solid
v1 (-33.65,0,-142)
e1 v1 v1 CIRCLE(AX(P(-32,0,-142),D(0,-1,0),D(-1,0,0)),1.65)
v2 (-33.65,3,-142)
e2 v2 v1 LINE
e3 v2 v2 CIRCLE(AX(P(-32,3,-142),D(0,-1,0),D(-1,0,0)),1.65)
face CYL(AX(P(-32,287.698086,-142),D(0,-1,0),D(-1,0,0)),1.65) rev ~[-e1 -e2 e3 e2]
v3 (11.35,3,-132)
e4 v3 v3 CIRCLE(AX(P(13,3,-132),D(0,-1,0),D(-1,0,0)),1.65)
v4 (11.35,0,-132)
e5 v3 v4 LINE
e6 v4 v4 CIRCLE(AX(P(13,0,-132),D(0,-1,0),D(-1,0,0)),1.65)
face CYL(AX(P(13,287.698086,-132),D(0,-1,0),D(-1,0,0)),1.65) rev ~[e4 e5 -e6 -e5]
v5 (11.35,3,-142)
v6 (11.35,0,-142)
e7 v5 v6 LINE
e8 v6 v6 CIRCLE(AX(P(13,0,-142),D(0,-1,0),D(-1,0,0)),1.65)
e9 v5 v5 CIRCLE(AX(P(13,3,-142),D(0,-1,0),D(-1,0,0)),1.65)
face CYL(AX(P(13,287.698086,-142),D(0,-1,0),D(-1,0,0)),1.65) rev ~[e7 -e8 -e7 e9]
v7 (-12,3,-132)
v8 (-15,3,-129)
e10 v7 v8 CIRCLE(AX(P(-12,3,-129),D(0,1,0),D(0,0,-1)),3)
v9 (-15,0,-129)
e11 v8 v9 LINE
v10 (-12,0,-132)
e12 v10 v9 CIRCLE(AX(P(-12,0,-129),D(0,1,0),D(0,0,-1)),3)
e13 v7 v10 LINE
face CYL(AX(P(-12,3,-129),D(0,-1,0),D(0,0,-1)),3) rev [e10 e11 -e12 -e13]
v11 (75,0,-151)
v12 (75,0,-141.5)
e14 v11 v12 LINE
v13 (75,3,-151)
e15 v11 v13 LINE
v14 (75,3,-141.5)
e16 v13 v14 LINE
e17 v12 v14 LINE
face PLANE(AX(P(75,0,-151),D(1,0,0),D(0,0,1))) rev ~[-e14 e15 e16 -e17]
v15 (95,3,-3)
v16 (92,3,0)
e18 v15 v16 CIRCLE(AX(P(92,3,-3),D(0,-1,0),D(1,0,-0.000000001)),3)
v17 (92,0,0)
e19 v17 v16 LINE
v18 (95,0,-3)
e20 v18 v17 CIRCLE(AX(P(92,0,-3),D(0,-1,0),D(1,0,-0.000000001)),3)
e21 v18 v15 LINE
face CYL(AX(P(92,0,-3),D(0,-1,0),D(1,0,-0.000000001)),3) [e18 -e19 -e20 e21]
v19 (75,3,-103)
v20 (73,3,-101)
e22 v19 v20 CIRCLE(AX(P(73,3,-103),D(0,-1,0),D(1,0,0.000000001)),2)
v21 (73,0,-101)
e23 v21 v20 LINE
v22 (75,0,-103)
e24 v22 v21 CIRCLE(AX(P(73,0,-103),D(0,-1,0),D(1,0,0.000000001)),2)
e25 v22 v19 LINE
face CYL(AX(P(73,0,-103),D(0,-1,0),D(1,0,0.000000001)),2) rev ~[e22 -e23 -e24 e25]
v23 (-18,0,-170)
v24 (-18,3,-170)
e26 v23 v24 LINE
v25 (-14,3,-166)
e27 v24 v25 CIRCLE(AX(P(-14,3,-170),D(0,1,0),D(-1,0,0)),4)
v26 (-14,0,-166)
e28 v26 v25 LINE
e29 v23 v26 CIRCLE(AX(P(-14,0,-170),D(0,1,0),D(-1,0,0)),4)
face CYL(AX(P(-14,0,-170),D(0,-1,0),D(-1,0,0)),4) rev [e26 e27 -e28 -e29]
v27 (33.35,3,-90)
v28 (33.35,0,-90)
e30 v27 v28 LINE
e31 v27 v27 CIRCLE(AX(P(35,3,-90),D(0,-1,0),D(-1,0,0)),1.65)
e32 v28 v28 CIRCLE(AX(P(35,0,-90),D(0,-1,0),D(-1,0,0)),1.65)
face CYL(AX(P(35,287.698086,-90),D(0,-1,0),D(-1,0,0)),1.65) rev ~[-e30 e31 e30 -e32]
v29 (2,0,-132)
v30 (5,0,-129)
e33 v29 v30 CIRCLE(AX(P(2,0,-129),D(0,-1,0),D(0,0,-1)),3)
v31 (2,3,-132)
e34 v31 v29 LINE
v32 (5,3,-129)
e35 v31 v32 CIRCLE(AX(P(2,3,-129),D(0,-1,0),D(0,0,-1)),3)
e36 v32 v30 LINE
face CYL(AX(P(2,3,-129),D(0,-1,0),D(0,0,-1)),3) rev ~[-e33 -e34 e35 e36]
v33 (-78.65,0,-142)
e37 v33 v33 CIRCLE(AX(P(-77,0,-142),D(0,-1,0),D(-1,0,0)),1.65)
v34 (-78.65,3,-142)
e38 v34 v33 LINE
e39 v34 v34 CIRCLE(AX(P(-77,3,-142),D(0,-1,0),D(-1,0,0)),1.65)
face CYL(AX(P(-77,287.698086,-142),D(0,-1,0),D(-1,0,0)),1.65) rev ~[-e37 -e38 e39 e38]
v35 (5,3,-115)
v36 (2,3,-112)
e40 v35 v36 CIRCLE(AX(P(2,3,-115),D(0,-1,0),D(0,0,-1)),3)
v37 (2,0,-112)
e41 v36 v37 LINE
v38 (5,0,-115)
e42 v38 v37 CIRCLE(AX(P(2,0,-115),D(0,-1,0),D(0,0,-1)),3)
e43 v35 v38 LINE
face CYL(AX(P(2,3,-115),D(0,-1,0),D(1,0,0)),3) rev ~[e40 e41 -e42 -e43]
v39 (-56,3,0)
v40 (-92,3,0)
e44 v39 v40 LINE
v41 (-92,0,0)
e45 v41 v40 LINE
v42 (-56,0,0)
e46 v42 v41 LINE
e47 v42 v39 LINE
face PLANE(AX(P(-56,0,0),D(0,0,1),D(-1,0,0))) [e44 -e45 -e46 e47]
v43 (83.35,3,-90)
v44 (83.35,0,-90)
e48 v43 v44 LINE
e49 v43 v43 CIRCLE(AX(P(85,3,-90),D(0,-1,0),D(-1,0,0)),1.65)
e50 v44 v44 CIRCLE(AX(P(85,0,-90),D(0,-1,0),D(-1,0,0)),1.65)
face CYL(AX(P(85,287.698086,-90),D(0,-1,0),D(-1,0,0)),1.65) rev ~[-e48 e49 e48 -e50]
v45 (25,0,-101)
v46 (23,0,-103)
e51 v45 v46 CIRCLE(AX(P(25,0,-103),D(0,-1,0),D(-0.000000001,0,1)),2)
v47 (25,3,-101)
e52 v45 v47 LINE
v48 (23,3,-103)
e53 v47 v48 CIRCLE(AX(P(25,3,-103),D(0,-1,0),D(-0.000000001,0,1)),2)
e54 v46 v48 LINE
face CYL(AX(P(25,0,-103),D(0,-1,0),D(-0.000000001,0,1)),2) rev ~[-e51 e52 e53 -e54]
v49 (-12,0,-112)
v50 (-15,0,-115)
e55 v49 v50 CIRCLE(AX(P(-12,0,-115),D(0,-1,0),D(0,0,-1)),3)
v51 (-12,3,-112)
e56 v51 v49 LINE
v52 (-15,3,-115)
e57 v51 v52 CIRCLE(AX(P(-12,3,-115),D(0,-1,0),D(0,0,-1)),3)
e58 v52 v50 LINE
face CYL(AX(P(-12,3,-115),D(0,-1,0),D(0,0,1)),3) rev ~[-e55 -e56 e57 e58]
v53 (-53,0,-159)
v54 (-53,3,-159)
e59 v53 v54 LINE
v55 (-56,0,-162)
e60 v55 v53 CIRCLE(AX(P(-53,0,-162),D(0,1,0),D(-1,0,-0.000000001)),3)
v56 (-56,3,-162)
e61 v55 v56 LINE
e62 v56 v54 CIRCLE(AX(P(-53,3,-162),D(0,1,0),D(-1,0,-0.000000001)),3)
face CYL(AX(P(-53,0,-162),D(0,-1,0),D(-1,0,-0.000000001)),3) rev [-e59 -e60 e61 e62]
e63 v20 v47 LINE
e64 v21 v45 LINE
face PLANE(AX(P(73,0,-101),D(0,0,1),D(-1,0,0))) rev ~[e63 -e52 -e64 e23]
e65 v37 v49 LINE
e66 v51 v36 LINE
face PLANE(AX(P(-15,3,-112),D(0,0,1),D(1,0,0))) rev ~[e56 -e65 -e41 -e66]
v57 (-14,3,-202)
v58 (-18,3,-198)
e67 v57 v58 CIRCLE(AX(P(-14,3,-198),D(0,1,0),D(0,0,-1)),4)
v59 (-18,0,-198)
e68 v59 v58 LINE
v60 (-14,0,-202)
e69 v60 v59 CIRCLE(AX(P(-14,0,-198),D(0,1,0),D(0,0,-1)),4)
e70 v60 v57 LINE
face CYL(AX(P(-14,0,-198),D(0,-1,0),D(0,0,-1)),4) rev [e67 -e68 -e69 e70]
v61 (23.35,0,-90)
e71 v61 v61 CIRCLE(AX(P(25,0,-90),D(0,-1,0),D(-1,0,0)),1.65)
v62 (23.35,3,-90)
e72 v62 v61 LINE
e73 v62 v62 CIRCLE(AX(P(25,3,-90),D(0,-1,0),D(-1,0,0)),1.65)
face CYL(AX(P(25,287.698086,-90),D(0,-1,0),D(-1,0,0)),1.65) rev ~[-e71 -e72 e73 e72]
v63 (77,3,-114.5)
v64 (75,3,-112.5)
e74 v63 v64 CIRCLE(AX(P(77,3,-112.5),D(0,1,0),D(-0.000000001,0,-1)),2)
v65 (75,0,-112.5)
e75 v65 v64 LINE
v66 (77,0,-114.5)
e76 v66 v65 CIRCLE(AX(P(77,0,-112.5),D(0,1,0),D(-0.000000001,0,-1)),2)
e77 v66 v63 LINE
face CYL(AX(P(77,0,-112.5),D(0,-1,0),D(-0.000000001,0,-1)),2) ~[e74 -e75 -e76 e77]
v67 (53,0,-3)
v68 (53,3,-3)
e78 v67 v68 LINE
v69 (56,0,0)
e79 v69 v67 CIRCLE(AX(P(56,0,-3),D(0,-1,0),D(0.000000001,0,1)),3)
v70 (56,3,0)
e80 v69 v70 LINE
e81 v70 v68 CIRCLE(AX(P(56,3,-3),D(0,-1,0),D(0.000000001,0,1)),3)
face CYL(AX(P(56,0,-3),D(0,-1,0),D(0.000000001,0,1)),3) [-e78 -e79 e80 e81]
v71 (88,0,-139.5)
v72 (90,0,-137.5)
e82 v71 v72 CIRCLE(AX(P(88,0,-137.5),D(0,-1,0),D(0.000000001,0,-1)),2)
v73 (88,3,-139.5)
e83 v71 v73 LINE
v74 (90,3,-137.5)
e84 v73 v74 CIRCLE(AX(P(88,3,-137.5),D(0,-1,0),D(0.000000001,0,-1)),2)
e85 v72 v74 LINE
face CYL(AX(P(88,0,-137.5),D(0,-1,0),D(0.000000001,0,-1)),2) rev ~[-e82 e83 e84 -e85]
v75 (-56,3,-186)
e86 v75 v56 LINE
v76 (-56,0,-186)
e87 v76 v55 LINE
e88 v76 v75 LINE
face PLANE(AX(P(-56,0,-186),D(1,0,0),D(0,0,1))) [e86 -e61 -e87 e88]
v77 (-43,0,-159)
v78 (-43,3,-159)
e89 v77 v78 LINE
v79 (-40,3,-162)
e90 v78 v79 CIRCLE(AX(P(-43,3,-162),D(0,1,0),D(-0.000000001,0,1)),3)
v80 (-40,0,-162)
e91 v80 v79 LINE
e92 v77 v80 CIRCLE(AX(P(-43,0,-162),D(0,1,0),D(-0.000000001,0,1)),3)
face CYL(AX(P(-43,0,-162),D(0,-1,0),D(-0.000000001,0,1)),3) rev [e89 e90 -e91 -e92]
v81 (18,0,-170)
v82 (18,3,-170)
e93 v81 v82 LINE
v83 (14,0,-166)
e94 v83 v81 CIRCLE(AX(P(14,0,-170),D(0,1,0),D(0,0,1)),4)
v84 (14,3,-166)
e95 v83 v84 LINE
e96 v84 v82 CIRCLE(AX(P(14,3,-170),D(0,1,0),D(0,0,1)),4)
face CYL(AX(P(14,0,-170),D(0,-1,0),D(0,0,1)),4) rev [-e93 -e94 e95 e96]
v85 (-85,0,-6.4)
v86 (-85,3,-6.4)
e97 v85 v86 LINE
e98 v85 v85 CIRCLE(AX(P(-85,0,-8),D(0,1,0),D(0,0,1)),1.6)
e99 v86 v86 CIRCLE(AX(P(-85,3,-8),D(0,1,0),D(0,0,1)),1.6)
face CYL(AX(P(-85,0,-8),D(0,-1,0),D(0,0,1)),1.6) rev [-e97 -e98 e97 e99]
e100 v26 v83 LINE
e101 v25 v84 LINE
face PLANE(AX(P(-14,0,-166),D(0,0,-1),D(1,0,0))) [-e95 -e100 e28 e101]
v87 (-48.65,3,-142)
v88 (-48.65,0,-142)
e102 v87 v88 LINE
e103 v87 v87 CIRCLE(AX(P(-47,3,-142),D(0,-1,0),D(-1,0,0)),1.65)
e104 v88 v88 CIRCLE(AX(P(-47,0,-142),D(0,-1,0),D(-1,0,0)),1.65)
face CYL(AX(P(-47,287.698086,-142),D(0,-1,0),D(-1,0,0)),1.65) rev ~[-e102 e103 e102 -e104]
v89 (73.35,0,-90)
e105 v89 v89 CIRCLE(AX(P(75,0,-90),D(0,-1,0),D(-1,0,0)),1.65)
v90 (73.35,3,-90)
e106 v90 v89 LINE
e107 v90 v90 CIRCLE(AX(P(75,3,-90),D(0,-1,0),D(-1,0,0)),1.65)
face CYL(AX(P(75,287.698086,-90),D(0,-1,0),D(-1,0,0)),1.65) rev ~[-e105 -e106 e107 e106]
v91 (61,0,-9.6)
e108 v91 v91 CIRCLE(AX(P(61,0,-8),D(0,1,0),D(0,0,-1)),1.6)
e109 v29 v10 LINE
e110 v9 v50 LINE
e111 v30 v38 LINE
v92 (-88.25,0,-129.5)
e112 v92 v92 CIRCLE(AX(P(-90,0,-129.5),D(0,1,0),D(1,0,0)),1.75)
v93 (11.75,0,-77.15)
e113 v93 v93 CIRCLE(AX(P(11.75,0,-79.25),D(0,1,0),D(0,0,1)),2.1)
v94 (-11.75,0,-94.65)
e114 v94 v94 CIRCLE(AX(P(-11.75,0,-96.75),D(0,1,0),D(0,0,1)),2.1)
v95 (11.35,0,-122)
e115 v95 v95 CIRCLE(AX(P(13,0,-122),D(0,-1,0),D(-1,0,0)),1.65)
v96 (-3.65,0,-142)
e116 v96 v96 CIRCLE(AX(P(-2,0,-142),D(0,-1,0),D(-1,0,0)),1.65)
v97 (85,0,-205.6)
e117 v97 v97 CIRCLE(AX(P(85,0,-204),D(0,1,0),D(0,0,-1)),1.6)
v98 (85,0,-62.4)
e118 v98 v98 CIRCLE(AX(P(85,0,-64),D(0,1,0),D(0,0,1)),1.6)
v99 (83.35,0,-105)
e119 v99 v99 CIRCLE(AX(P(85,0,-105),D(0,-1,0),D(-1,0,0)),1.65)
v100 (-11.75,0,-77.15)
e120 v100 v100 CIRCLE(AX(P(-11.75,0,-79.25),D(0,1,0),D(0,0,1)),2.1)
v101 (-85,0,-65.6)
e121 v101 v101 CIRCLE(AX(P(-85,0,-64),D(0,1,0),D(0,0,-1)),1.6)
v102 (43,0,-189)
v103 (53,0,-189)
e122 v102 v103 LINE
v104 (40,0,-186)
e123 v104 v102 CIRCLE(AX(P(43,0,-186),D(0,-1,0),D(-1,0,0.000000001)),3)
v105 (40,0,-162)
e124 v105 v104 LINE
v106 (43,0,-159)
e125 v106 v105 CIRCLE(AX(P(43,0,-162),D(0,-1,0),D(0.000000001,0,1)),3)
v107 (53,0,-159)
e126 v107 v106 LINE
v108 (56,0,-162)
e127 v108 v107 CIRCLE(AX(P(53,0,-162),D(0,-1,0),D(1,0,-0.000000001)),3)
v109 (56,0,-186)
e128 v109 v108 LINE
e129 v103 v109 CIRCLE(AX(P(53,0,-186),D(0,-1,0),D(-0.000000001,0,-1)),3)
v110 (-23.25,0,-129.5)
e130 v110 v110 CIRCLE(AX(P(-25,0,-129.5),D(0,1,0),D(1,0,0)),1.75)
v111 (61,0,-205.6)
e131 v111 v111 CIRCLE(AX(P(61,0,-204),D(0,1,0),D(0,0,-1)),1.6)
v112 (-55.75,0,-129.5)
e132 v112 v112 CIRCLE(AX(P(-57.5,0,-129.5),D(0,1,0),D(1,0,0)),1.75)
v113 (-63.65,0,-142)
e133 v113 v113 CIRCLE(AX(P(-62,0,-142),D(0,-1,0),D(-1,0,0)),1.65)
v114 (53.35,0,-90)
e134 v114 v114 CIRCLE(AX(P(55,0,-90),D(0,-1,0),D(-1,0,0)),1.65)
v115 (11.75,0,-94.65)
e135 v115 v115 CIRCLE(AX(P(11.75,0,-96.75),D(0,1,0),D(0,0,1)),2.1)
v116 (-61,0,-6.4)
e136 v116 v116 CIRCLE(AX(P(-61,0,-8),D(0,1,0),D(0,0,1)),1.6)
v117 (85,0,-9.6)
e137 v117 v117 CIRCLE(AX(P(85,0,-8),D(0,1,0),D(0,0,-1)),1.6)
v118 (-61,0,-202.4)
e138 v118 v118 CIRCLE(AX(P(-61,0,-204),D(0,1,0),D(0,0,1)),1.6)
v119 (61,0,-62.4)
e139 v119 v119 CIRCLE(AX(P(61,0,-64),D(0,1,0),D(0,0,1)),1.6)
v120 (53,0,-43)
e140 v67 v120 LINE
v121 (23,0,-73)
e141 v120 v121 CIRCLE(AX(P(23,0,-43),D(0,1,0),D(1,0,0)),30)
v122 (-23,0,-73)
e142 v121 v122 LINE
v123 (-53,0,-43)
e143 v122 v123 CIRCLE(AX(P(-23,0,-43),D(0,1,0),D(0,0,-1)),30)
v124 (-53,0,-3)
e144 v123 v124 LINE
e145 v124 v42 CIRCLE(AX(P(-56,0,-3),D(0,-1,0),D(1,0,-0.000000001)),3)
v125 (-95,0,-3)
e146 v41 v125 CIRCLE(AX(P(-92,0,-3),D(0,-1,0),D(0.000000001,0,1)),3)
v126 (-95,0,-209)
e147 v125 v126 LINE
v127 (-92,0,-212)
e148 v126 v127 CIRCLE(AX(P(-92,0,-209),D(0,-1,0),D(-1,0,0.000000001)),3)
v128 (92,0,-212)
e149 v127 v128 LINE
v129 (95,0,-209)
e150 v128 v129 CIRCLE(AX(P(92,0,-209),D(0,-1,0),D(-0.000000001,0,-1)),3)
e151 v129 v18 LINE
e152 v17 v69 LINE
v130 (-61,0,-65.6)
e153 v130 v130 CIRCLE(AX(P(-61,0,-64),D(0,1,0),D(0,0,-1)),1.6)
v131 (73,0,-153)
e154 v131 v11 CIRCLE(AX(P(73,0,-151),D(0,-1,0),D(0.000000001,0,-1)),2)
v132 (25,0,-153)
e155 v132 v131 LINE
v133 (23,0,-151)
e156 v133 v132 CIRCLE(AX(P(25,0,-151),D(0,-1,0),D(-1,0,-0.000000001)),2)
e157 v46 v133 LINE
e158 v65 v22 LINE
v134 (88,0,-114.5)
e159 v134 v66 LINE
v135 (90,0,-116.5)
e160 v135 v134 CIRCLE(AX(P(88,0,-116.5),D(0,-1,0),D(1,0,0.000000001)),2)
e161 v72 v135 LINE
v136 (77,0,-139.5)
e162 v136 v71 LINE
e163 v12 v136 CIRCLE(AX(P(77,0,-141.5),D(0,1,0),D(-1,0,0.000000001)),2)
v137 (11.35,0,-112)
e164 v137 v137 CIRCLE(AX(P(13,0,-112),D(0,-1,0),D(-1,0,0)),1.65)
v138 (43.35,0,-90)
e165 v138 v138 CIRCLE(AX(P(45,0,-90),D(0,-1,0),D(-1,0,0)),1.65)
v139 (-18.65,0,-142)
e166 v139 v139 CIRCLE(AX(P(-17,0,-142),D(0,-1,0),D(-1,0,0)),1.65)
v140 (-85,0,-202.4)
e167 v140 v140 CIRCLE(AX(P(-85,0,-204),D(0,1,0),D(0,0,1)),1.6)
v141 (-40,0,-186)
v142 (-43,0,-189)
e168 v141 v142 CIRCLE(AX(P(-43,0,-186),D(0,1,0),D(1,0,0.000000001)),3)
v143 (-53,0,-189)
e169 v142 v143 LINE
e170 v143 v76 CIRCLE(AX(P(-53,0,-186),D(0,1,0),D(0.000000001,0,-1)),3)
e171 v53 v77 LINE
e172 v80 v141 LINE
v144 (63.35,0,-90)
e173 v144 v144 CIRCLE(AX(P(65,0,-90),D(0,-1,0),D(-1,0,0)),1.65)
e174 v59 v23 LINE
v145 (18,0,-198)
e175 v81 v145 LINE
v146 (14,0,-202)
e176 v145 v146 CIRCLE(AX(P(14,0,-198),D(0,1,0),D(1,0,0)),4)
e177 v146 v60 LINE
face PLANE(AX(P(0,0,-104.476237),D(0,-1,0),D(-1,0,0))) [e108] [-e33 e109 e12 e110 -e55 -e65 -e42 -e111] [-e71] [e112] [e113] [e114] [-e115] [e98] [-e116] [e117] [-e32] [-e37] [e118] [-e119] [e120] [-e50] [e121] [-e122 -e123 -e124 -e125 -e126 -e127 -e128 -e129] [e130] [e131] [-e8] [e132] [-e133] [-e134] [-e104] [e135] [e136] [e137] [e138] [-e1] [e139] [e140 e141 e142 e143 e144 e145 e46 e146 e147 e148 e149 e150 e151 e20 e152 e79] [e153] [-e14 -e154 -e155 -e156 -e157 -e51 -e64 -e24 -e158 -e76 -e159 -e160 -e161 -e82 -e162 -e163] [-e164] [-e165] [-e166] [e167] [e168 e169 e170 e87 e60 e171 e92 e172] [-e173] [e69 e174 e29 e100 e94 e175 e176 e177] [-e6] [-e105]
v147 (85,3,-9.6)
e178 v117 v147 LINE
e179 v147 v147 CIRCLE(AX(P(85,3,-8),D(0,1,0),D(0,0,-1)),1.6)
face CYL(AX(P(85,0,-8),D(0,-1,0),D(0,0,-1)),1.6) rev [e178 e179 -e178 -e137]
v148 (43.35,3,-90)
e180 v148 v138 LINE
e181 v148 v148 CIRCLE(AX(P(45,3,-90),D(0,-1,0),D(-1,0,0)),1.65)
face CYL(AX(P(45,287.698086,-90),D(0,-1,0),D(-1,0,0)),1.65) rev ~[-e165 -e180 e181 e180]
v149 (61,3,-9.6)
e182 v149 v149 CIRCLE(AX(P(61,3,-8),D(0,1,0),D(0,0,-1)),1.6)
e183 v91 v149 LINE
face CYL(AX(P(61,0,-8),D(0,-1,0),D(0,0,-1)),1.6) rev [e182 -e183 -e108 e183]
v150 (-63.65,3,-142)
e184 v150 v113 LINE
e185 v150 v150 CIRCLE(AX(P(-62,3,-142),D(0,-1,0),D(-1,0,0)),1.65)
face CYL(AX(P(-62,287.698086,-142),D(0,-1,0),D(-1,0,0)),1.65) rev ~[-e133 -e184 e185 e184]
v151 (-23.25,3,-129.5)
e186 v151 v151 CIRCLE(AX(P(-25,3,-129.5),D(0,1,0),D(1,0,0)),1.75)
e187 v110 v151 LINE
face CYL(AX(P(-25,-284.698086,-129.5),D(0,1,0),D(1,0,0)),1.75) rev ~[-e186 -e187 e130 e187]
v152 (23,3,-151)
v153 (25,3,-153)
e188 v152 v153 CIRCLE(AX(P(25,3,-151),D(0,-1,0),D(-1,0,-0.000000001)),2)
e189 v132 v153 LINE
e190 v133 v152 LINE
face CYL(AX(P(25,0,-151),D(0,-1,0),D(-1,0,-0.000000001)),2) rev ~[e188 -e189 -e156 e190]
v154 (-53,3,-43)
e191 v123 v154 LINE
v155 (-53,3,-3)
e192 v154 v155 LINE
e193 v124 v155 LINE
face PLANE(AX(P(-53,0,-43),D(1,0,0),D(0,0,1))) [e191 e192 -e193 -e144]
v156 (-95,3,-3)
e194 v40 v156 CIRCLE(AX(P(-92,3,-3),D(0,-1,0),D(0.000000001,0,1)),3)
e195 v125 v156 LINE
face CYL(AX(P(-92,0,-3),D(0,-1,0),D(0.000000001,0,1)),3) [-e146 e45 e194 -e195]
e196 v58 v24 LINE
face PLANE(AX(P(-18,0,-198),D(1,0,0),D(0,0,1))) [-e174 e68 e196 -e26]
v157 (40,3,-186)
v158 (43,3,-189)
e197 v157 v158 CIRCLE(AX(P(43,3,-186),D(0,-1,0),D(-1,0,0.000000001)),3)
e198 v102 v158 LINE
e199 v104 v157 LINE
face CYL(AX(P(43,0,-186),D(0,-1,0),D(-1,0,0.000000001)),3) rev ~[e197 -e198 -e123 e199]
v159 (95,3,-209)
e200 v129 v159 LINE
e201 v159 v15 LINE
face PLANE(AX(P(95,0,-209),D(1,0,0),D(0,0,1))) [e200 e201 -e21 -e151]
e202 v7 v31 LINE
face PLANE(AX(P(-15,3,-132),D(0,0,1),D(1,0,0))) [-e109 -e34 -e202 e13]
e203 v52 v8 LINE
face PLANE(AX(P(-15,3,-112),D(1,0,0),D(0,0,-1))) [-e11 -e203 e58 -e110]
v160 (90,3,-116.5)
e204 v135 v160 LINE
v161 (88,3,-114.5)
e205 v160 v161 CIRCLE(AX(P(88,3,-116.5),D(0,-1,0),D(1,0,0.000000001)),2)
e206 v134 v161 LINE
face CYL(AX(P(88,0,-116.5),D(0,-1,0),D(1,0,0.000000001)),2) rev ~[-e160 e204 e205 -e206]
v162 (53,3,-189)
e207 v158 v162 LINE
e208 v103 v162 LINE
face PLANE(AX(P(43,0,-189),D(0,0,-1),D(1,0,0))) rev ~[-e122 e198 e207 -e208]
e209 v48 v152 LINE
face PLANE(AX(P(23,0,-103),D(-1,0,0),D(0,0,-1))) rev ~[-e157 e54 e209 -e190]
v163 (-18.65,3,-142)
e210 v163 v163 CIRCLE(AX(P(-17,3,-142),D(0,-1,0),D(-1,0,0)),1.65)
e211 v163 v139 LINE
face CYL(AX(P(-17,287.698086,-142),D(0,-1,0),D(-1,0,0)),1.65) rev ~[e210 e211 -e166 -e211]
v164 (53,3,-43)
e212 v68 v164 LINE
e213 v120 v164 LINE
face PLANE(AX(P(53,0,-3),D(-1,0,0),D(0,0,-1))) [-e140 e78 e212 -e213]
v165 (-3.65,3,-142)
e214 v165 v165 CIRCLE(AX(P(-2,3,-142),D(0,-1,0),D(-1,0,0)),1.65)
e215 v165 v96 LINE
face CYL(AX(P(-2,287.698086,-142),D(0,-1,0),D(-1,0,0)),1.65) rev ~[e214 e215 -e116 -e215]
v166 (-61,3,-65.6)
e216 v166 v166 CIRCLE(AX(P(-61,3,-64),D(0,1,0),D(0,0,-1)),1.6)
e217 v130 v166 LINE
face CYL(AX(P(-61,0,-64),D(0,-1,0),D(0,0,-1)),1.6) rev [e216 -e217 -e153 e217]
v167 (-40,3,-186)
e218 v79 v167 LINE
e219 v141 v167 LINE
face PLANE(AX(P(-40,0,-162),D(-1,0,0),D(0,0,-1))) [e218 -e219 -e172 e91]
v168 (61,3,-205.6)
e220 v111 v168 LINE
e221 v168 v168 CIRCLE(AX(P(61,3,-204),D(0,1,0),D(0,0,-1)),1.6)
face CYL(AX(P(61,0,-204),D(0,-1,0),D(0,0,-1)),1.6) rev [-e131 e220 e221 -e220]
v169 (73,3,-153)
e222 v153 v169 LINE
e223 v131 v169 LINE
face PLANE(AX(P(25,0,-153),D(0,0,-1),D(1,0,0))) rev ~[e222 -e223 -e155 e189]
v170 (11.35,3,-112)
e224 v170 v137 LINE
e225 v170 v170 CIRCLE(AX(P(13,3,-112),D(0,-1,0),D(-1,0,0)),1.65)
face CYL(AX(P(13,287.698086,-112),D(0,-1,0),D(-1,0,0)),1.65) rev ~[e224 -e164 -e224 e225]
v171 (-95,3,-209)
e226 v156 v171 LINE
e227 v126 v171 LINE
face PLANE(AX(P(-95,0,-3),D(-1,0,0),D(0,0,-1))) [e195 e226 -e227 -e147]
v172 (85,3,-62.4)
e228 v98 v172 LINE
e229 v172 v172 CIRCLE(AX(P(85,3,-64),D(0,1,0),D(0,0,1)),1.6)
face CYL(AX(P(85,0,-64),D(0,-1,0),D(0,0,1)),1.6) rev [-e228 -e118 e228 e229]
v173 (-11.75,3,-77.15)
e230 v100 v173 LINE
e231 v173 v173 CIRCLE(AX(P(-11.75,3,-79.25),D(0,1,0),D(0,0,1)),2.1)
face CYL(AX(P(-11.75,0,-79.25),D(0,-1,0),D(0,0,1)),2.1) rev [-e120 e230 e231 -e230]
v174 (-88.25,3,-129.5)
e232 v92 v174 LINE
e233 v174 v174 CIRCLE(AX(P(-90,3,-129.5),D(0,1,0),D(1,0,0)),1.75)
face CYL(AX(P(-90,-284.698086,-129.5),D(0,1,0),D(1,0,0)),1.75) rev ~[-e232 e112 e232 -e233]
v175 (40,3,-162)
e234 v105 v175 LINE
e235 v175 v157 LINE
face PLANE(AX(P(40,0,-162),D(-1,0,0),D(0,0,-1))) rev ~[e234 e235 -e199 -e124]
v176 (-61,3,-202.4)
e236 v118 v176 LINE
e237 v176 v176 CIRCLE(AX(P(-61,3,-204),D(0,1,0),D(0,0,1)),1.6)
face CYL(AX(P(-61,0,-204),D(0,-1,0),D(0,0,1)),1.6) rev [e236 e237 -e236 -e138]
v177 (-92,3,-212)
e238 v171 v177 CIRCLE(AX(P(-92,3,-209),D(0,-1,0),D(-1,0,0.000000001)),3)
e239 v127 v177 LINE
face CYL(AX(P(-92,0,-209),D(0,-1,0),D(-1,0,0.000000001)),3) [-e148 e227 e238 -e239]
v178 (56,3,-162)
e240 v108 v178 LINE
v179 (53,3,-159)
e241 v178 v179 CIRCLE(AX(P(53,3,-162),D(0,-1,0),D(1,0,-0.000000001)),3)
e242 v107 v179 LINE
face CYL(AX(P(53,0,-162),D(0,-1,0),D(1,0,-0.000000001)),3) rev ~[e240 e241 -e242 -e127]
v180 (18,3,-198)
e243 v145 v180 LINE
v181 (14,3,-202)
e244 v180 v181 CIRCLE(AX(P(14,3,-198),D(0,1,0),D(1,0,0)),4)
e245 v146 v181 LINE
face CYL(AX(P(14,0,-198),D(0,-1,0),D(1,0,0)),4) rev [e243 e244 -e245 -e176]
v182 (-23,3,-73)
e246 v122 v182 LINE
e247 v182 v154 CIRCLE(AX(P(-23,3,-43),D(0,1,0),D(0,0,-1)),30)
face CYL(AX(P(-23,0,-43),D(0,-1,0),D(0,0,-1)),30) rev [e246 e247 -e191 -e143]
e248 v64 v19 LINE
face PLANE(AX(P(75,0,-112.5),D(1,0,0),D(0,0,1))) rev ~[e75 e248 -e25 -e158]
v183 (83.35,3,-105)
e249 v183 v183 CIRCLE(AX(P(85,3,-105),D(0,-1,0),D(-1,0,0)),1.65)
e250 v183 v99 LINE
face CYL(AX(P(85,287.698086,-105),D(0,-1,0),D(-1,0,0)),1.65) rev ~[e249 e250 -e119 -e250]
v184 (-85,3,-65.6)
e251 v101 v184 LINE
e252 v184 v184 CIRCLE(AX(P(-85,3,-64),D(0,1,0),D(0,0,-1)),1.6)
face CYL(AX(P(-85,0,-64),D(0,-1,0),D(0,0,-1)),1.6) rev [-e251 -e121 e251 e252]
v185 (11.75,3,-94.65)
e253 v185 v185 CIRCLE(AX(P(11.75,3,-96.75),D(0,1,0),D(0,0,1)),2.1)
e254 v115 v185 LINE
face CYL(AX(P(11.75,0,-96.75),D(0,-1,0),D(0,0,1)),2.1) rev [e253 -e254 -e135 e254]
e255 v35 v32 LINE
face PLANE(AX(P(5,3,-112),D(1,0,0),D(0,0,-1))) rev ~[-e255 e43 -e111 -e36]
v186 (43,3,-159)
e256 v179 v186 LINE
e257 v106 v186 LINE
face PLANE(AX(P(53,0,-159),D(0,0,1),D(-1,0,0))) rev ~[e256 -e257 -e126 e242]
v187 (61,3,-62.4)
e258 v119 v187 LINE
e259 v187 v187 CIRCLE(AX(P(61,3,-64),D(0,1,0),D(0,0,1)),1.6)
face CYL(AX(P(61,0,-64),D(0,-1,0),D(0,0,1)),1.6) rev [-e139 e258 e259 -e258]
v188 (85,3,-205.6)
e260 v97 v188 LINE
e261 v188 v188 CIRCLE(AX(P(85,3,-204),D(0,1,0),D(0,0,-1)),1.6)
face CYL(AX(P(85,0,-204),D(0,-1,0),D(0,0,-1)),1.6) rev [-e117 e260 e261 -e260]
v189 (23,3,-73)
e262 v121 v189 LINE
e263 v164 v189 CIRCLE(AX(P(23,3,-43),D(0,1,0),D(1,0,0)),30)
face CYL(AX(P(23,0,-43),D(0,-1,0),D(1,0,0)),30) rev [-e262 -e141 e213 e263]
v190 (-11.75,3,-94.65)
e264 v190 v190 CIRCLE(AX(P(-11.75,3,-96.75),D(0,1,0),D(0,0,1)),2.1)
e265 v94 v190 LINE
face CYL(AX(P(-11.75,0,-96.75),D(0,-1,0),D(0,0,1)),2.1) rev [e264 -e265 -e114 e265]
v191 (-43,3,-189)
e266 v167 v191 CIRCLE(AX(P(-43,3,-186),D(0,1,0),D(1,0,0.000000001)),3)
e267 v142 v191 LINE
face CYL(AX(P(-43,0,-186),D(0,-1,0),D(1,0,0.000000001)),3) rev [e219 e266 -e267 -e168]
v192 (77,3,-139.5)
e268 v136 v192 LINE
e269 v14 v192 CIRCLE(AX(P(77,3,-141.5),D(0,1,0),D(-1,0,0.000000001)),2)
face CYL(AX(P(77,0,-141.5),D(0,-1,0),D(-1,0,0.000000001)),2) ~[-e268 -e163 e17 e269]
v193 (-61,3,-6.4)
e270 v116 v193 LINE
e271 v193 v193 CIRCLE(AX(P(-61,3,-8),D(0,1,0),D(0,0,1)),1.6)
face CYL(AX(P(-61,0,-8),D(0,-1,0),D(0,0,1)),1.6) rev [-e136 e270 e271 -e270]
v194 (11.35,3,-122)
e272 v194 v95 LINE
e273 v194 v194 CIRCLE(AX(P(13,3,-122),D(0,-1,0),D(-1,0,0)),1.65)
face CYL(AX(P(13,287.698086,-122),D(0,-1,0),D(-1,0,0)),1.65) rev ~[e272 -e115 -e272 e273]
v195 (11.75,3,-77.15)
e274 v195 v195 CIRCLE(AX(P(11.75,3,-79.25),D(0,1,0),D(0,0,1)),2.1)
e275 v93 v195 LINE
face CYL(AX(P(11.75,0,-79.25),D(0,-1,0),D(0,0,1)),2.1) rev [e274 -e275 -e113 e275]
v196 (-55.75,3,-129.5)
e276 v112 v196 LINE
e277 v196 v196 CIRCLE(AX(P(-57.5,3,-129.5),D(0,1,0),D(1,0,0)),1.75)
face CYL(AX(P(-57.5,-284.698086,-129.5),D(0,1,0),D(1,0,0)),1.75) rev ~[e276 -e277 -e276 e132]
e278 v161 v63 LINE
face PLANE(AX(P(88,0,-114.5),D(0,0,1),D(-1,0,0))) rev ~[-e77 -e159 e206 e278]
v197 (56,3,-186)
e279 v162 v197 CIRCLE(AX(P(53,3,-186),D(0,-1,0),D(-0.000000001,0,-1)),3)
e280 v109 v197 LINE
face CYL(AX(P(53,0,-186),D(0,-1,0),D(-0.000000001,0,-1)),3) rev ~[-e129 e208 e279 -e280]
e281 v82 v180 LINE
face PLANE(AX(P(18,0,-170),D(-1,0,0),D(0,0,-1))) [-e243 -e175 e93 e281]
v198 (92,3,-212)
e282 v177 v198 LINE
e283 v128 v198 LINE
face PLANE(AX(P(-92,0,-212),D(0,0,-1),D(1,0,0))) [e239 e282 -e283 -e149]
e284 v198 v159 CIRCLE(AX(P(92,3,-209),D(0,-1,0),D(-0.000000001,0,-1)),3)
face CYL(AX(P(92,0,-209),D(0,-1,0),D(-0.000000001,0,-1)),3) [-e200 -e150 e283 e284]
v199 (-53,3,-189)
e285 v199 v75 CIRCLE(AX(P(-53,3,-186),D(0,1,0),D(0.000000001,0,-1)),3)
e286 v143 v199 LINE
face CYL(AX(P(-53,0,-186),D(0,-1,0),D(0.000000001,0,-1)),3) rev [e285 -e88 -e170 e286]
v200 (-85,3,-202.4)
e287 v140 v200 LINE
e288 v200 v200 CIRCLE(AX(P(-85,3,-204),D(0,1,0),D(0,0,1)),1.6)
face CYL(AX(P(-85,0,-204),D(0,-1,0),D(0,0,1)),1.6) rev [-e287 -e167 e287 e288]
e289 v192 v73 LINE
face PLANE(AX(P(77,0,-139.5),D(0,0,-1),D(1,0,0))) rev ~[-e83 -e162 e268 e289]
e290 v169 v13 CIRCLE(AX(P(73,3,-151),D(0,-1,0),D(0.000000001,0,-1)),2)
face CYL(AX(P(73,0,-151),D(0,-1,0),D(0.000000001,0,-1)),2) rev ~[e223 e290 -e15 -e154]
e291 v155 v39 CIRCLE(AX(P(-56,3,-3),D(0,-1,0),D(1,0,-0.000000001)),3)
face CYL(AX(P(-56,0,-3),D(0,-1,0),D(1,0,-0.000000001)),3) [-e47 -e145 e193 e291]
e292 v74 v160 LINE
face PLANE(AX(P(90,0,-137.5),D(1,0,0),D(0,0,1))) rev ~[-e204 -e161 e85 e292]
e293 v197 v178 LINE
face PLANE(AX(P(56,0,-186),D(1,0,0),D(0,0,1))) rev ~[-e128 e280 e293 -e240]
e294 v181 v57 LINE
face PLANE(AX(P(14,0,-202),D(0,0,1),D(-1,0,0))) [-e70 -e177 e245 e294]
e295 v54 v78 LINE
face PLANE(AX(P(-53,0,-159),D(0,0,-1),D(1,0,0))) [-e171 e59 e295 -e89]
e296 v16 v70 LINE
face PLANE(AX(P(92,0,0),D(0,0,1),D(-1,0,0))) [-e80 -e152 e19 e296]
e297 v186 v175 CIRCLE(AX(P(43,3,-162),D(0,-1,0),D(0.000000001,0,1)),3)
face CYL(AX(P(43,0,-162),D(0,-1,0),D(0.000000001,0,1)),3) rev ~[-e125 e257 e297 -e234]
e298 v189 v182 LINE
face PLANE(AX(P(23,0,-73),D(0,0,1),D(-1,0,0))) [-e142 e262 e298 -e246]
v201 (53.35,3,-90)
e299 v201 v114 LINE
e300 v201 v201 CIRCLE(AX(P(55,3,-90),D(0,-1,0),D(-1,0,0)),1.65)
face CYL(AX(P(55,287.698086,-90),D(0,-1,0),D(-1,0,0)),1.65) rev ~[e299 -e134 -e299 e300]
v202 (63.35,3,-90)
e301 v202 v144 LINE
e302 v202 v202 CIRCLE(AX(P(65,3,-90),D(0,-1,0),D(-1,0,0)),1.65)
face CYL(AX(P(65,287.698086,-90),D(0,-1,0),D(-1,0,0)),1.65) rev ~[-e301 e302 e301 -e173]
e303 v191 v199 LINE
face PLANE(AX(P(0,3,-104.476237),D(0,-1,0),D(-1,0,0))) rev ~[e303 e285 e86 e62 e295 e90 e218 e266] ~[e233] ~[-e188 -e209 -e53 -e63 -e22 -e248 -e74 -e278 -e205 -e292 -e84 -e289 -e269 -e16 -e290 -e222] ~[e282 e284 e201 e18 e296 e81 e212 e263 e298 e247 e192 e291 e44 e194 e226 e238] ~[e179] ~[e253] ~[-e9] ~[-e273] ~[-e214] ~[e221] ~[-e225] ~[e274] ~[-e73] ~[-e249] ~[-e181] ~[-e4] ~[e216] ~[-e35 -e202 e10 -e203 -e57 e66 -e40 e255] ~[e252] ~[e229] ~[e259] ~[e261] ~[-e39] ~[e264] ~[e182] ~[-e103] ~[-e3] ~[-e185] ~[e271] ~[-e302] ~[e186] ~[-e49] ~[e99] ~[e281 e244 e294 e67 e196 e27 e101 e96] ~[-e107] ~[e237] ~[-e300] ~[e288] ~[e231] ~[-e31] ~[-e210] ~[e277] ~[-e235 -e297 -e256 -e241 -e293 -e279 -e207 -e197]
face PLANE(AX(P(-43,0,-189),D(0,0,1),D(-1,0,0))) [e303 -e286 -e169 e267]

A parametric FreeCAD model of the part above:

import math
import FreeCAD as App
import Part
import Sketcher
Q = App.Units.Quantity


def edges_at(feature, points):
    """Names of the edges that pass closest to the given points."""
    edges = feature.Shape.Edges
    near = lambda p: min(range(len(edges)), key=lambda i: edges[i].distToShape(Part.Vertex(*p))[0])
    return sorted({f"Edge{near(p) + 1}" for p in points})

doc = App.newDocument("Part")
body = doc.addObject("PartDesign::Body", "Body")

sketch1 = body.newObject("Sketcher::SketchObject", "Sketch")
sketch1.AttachmentSupport = (doc.getObject("XZ_Plane"), [""])
sketch1.MapMode = "FlatFace"
sketch1.addGeometry([
    Part.LineSegment(App.Vector(-95, -209, 0), App.Vector(-95, -3, 0)),
    Part.ArcOfCircle(Part.Circle(App.Vector(-92, -3, 0), App.Vector(0, 0, 1), 3), math.radians(90), math.radians(180)),
    Part.LineSegment(App.Vector(-92, 0, 0), App.Vector(-56, 0, 0)),
    Part.ArcOfCircle(Part.Circle(App.Vector(-56, -3, 0), App.Vector(0, 0, 1), 3), math.radians(0), math.radians(90)),
    Part.LineSegment(App.Vector(-53, -3, 0), App.Vector(-53, -43, 0)),
    Part.ArcOfCircle(Part.Circle(App.Vector(-23, -43, 0), App.Vector(0, 0, 1), 30), math.radians(180), math.radians(270)),
    Part.LineSegment(App.Vector(-23, -73, 0), App.Vector(23, -73, 0)),
    Part.ArcOfCircle(Part.Circle(App.Vector(23, -43, 0), App.Vector(0, 0, 1), 30), math.radians(-90), math.radians(0)),
    Part.LineSegment(App.Vector(53, -43, 0), App.Vector(53, -3, 0)),
    Part.ArcOfCircle(Part.Circle(App.Vector(56, -3, 0), App.Vector(0, 0, 1), 3), math.radians(90), math.radians(180)),
    Part.LineSegment(App.Vector(56, 0, 0), App.Vector(92, 0, 0)),
    Part.ArcOfCircle(Part.Circle(App.Vector(92, -3, 0), App.Vector(0, 0, 1), 3), math.radians(0), math.radians(90)),
    Part.LineSegment(App.Vector(95, -3, 0), App.Vector(95, -209, 0)),
    Part.ArcOfCircle(Part.Circle(App.Vector(92, -209, 0), App.Vector(0, 0, 1), 3), math.radians(-90), math.radians(0)),
    Part.LineSegment(App.Vector(92, -212, 0), App.Vector(-92, -212, 0)),
    Part.ArcOfCircle(Part.Circle(App.Vector(-92, -209, 0), App.Vector(0, 0, 1), 3), math.radians(180), math.radians(270)),
    Part.Circle(App.Vector(85, -8, 0), App.Vector(0, 0, 1), 1.6),
    Part.Circle(App.Vector(61, -8, 0), App.Vector(0, 0, 1), 1.6),
    Part.Circle(App.Vector(85, -64, 0), App.Vector(0, 0, 1), 1.6),
    Part.Circle(App.Vector(61, -64, 0), App.Vector(0, 0, 1), 1.6),
    Part.Circle(App.Vector(11.75, -79.25, 0), App.Vector(0, 0, 1), 2.1),
    Part.Circle(App.Vector(11.75, -96.75, 0), App.Vector(0, 0, 1), 2.1),
    Part.Circle(App.Vector(-61, -8, 0), App.Vector(0, 0, 1), 1.6),
    Part.Circle(App.Vector(-85, -8, 0), App.Vector(0, 0, 1), 1.6),
    Part.Circle(App.Vector(-11.75, -79.25, 0), App.Vector(0, 0, 1), 2.1),
    Part.Circle(App.Vector(-11.75, -96.75, 0), App.Vector(0, 0, 1), 2.1),
    Part.Circle(App.Vector(-61, -64, 0), App.Vector(0, 0, 1), 1.6),
    Part.Circle(App.Vector(-85, -64, 0), App.Vector(0, 0, 1), 1.6),
    Part.LineSegment(App.Vector(77, -139.5, 0), App.Vector(88, -139.5, 0)),
    Part.ArcOfCircle(Part.Circle(App.Vector(88, -137.5, 0), App.Vector(0, 0, 1), 2), math.radians(-90), math.radians(0)),
    Part.LineSegment(App.Vector(90, -137.5, 0), App.Vector(90, -116.5, 0)),
    Part.ArcOfCircle(Part.Circle(App.Vector(88, -116.5, 0), App.Vector(0, 0, 1), 2), math.radians(0), math.radians(90)),
    Part.LineSegment(App.Vector(88, -114.5, 0), App.Vector(77, -114.5, 0)),
    Part.ArcOfCircle(Part.Circle(App.Vector(77, -112.5, 0), App.Vector(0, 0, 1), 2), math.radians(-180), math.radians(-90)),
    Part.LineSegment(App.Vector(75, -112.5, 0), App.Vector(75, -103, 0)),
    Part.ArcOfCircle(Part.Circle(App.Vector(73, -103, 0), App.Vector(0, 0, 1), 2), math.radians(0), math.radians(90)),
    Part.LineSegment(App.Vector(73, -101, 0), App.Vector(25, -101, 0)),
    Part.ArcOfCircle(Part.Circle(App.Vector(25, -103, 0), App.Vector(0, 0, 1), 2), math.radians(90), math.radians(180)),
    Part.LineSegment(App.Vector(23, -103, 0), App.Vector(23, -151, 0)),
    Part.ArcOfCircle(Part.Circle(App.Vector(25, -151, 0), App.Vector(0, 0, 1), 2), math.radians(-180), math.radians(-90)),
    Part.LineSegment(App.Vector(25, -153, 0), App.Vector(73, -153, 0)),
    Part.ArcOfCircle(Part.Circle(App.Vector(73, -151, 0), App.Vector(0, 0, 1), 2), math.radians(-90), math.radians(0)),
    Part.LineSegment(App.Vector(75, -151, 0), App.Vector(75, -141.5, 0)),
    Part.ArcOfCircle(Part.Circle(App.Vector(77, -141.5, 0), App.Vector(0, 0, 1), 2), math.radians(90), math.radians(180)),
    Part.LineSegment(App.Vector(43, -189, 0), App.Vector(53, -189, 0)),
    Part.ArcOfCircle(Part.Circle(App.Vector(53, -186, 0), App.Vector(0, 0, 1), 3), math.radians(-90), math.radians(0)),
    Part.LineSegment(App.Vector(56, -186, 0), App.Vector(56, -162, 0)),
    Part.ArcOfCircle(Part.Circle(App.Vector(53, -162, 0), App.Vector(0, 0, 1), 3), math.radians(0), math.radians(90)),
    Part.LineSegment(App.Vector(53, -159, 0), App.Vector(43, -159, 0)),
    Part.ArcOfCircle(Part.Circle(App.Vector(43, -162, 0), App.Vector(0, 0, 1), 3), math.radians(90), math.radians(180)),
    Part.LineSegment(App.Vector(40, -162, 0), App.Vector(40, -186, 0)),
    Part.ArcOfCircle(Part.Circle(App.Vector(43, -186, 0), App.Vector(0, 0, 1), 3), math.radians(180), math.radians(270)),
    Part.Circle(App.Vector(85, -204, 0), App.Vector(0, 0, 1), 1.6),
    Part.Circle(App.Vector(61, -204, 0), App.Vector(0, 0, 1), 1.6),
    Part.ArcOfCircle(Part.Circle(App.Vector(-14, -170, 0), App.Vector(0, 0, 1), 4), math.radians(90), math.radians(180)),
    Part.LineSegment(App.Vector(-18, -170, 0), App.Vector(-18, -198, 0)),
    Part.ArcOfCircle(Part.Circle(App.Vector(-14, -198, 0), App.Vector(0, 0, 1), 4), math.radians(180), math.radians(270)),
    Part.LineSegment(App.Vector(-14, -202, 0), App.Vector(14, -202, 0)),
    Part.ArcOfCircle(Part.Circle(App.Vector(14, -198, 0), App.Vector(0, 0, 1), 4), math.radians(-90), math.radians(0)),
    Part.LineSegment(App.Vector(18, -198, 0), App.Vector(18, -170, 0)),
    Part.ArcOfCircle(Part.Circle(App.Vector(14, -170, 0), App.Vector(0, 0, 1), 4), math.radians(0), math.radians(90)),
    Part.LineSegment(App.Vector(14, -166, 0), App.Vector(-14, -166, 0)),
    Part.ArcOfCircle(Part.Circle(App.Vector(-53, -186, 0), App.Vector(0, 0, 1), 3), math.radians(180), math.radians(270)),
    Part.LineSegment(App.Vector(-53, -189, 0), App.Vector(-43, -189, 0)),
    Part.ArcOfCircle(Part.Circle(App.Vector(-43, -186, 0), App.Vector(0, 0, 1), 3), math.radians(-90), math.radians(0)),
    Part.LineSegment(App.Vector(-40, -186, 0), App.Vector(-40, -162, 0)),
    Part.ArcOfCircle(Part.Circle(App.Vector(-43, -162, 0), App.Vector(0, 0, 1), 3), math.radians(0), math.radians(90)),
    Part.LineSegment(App.Vector(-43, -159, 0), App.Vector(-53, -159, 0)),
    Part.ArcOfCircle(Part.Circle(App.Vector(-53, -162, 0), App.Vector(0, 0, 1), 3), math.radians(90), math.radians(180)),
    Part.LineSegment(App.Vector(-56, -162, 0), App.Vector(-56, -186, 0)),
    Part.Circle(App.Vector(-61, -204, 0), App.Vector(0, 0, 1), 1.6),
    Part.Circle(App.Vector(-85, -204, 0), App.Vector(0, 0, 1), 1.6),
], False)
sketch1.addConstraint([
    Sketcher.Constraint("Tangent", 0, 2, 1, 2),
    Sketcher.Constraint("Tangent", 1, 1, 2, 1),
    Sketcher.Constraint("Tangent", 2, 2, 3, 2),
    Sketcher.Constraint("Tangent", 3, 1, 4, 1),
    Sketcher.Constraint("Tangent", 4, 2, 5, 1),
    Sketcher.Constraint("Tangent", 5, 2, 6, 1),
    Sketcher.Constraint("Tangent", 6, 2, 7, 1),
    Sketcher.Constraint("Tangent", 7, 2, 8, 1),
    Sketcher.Constraint("Tangent", 8, 2, 9, 2),
    Sketcher.Constraint("Tangent", 9, 1, 10, 1),
    Sketcher.Constraint("Tangent", 10, 2, 11, 2),
    Sketcher.Constraint("Tangent", 11, 1, 12, 1),
    Sketcher.Constraint("Tangent", 12, 2, 13, 2),
    Sketcher.Constraint("Tangent", 13, 1, 14, 1),
    Sketcher.Constraint("Tangent", 14, 2, 15, 2),
    Sketcher.Constraint("Tangent", 15, 1, 0, 1),
    Sketcher.Constraint("Tangent", 28, 2, 29, 1),
    Sketcher.Constraint("Tangent", 29, 2, 30, 1),
    Sketcher.Constraint("Tangent", 30, 2, 31, 1),
    Sketcher.Constraint("Tangent", 31, 2, 32, 1),
    Sketcher.Constraint("Tangent", 32, 2, 33, 2),
    Sketcher.Constraint("Tangent", 33, 1, 34, 1),
    Sketcher.Constraint("Tangent", 34, 2, 35, 1),
    Sketcher.Constraint("Tangent", 35, 2, 36, 1),
    Sketcher.Constraint("Tangent", 36, 2, 37, 1),
    Sketcher.Constraint("Tangent", 37, 2, 38, 1),
    Sketcher.Constraint("Tangent", 38, 2, 39, 1),
    Sketcher.Constraint("Tangent", 39, 2, 40, 1),
    Sketcher.Constraint("Tangent", 40, 2, 41, 1),
    Sketcher.Constraint("Tangent", 41, 2, 42, 1),
    Sketcher.Constraint("Tangent", 42, 2, 43, 2),
    Sketcher.Constraint("Tangent", 43, 1, 28, 1),
    Sketcher.Constraint("Tangent", 44, 2, 45, 1),
    Sketcher.Constraint("Tangent", 45, 2, 46, 1),
    Sketcher.Constraint("Tangent", 46, 2, 47, 1),
    Sketcher.Constraint("Tangent", 47, 2, 48, 1),
    Sketcher.Constraint("Tangent", 48, 2, 49, 1),
    Sketcher.Constraint("Tangent", 49, 2, 50, 1),
    Sketcher.Constraint("Tangent", 50, 2, 51, 1),
    Sketcher.Constraint("Tangent", 51, 2, 44, 1),
    Sketcher.Constraint("Tangent", 54, 2, 55, 1),
    Sketcher.Constraint("Tangent", 55, 2, 56, 1),
    Sketcher.Constraint("Tangent", 56, 2, 57, 1),
    Sketcher.Constraint("Tangent", 57, 2, 58, 1),
    Sketcher.Constraint("Tangent", 58, 2, 59, 1),
    Sketcher.Constraint("Tangent", 59, 2, 60, 1),
    Sketcher.Constraint("Tangent", 60, 2, 61, 1),
    Sketcher.Constraint("Tangent", 61, 2, 54, 1),
    Sketcher.Constraint("Tangent", 62, 2, 63, 1),
    Sketcher.Constraint("Tangent", 63, 2, 64, 1),
    Sketcher.Constraint("Tangent", 64, 2, 65, 1),
    Sketcher.Constraint("Tangent", 65, 2, 66, 1),
    Sketcher.Constraint("Tangent", 66, 2, 67, 1),
    Sketcher.Constraint("Tangent", 67, 2, 68, 1),
    Sketcher.Constraint("Tangent", 68, 2, 69, 1),
    Sketcher.Constraint("Tangent", 69, 2, 62, 1),
    Sketcher.Constraint("Vertical", 0),
    Sketcher.Constraint("Horizontal", 2),
    Sketcher.Constraint("Vertical", 4),
    Sketcher.Constraint("Horizontal", 6),
    Sketcher.Constraint("Vertical", 8),
    Sketcher.Constraint("Horizontal", 10),
    Sketcher.Constraint("Vertical", 12),
    Sketcher.Constraint("Horizontal", 14),
    Sketcher.Constraint("Horizontal", 28),
    Sketcher.Constraint("Vertical", 30),
    Sketcher.Constraint("Horizontal", 32),
    Sketcher.Constraint("Vertical", 34),
    Sketcher.Constraint("Horizontal", 36),
    Sketcher.Constraint("Vertical", 38),
    Sketcher.Constraint("Horizontal", 40),
    Sketcher.Constraint("Vertical", 42),
    Sketcher.Constraint("Horizontal", 44),
    Sketcher.Constraint("Vertical", 46),
    Sketcher.Constraint("Horizontal", 48),
    Sketcher.Constraint("Vertical", 50),
    Sketcher.Constraint("Vertical", 55),
    Sketcher.Constraint("Horizontal", 57),
    Sketcher.Constraint("Vertical", 59),
    Sketcher.Constraint("Horizontal", 61),
    Sketcher.Constraint("Horizontal", 63),
    Sketcher.Constraint("Vertical", 65),
    Sketcher.Constraint("Horizontal", 67),
    Sketcher.Constraint("Vertical", 69),
    Sketcher.Constraint("Equal", 1, 3),
    Sketcher.Constraint("Equal", 5, 7),
    Sketcher.Constraint("Equal", 3, 9),
    Sketcher.Constraint("Equal", 9, 11),
    Sketcher.Constraint("Equal", 11, 13),
    Sketcher.Constraint("Equal", 13, 15),
    Sketcher.Constraint("Equal", 16, 17),
    Sketcher.Constraint("Equal", 17, 18),
    Sketcher.Constraint("Equal", 18, 19),
    Sketcher.Constraint("Equal", 20, 21),
    Sketcher.Constraint("Equal", 19, 22),
    Sketcher.Constraint("Equal", 22, 23),
    Sketcher.Constraint("Equal", 21, 24),
    Sketcher.Constraint("Equal", 24, 25),
    Sketcher.Constraint("Equal", 23, 26),
    Sketcher.Constraint("Equal", 26, 27),
    Sketcher.Constraint("Equal", 29, 31),
    Sketcher.Constraint("Equal", 31, 33),
    Sketcher.Constraint("Equal", 33, 35),
    Sketcher.Constraint("Equal", 35, 37),
    Sketcher.Constraint("Equal", 37, 39),
    Sketcher.Constraint("Equal", 39, 41),
    Sketcher.Constraint("Equal", 41, 43),
    Sketcher.Constraint("Equal", 15, 45),
    Sketcher.Constraint("Equal", 45, 47),
    Sketcher.Constraint("Equal", 47, 49),
    Sketcher.Constraint("Equal", 49, 51),
    Sketcher.Constraint("Equal", 27, 52),
    Sketcher.Constraint("Equal", 52, 53),
    Sketcher.Constraint("Equal", 54, 56),
    Sketcher.Constraint("Equal", 56, 58),
    Sketcher.Constraint("Equal", 58, 60),
    Sketcher.Constraint("Equal", 51, 62),
    Sketcher.Constraint("Equal", 62, 64),
    Sketcher.Constraint("Equal", 64, 66),
    Sketcher.Constraint("Equal", 66, 68),
    Sketcher.Constraint("Equal", 53, 70),
    Sketcher.Constraint("Equal", 70, 71),
    Sketcher.Constraint("Symmetric", 2, 2, 9, 1, -1, 1),
    Sketcher.Constraint("Symmetric", 1, 3, 11, 3, -2),
    Sketcher.Constraint("Symmetric", 17, 3, 22, 3, -2),
    Sketcher.Constraint("Symmetric", 16, 3, 23, 3, -2),
    Sketcher.Constraint("Symmetric", 20, 3, 24, 3, -2),
    Sketcher.Constraint("Symmetric", 21, 3, 25, 3, -2),
    Sketcher.Constraint("Symmetric", 19, 3, 26, 3, -2),
    Sketcher.Constraint("Symmetric", 18, 3, 27, 3, -2),
    Sketcher.Constraint("Symmetric", 45, 3, 62, 3, -2),
    Sketcher.Constraint("Symmetric", 49, 3, 66, 3, -2),
    Sketcher.Constraint("Symmetric", 53, 3, 70, 3, -2),
    Sketcher.Constraint("Symmetric", 52, 3, 71, 3, -2),
    Sketcher.Constraint("Horizontal", 16, 3, 17, 3),
    Sketcher.Constraint("Horizontal", 18, 3, 19, 3),
    Sketcher.Constraint("Horizontal", 52, 3, 53, 3),
    Sketcher.Constraint("Vertical", 16, 3, 18, 3),
    Sketcher.Constraint("Vertical", 17, 3, 19, 3),
    Sketcher.Constraint("Vertical", 20, 3, 21, 3),
    Sketcher.Constraint("Vertical", 35, 3, 41, 3),
    Sketcher.Constraint("Vertical", 18, 3, 52, 3),
    Sketcher.Constraint("Vertical", 19, 3, 53, 3),
    Sketcher.Constraint("Vertical", 68, 3, 3, 1),
    Sketcher.Constraint("Vertical", 6, 2, 37, 2),
    Sketcher.Constraint("Equal", 40, 38),
    Sketcher.Constraint("Equal", 34, 42),
    Sketcher.Constraint("Equal", 61, 55),
    Sketcher.Constraint("Radius", 1, Q("3 mm")),
    Sketcher.Constraint("Radius", 5, Q("30 mm")),
    Sketcher.Constraint("Radius", 29, Q("2 mm")),
    Sketcher.Constraint("Radius", 54, Q("4 mm")),
    Sketcher.Constraint("Diameter", 16, Q("3.2 mm")),
    Sketcher.Constraint("Diameter", 20, Q("4.2 mm")),
    Sketcher.Constraint("DistanceX", 2, 1, 2, 2, Q("36 mm")),
    Sketcher.Constraint("DistanceX", 6, 1, 6, 2, Q("46 mm")),
    Sketcher.Constraint("DistanceX", 28, 1, 28, 2, Q("11 mm")),
    Sketcher.Constraint("DistanceX", 36, 2, 36, 1, Q("48 mm")),
    Sketcher.Constraint("DistanceX", 44, 1, 44, 2, Q("10 mm")),
    Sketcher.Constraint("DistanceX", 57, 1, 57, 2, Q("28 mm")),
    Sketcher.Constraint("DistanceY", 0, 1, 0, 2, Q("206 mm")),
    Sketcher.Constraint("DistanceY", 4, 2, 4, 1, Q("40 mm")),
    Sketcher.Constraint("DistanceY", 30, 1, 30, 2, Q("21 mm")),
    Sketcher.Constraint("DistanceY", 46, 1, 46, 2, Q("24 mm")),
    Sketcher.Constraint("DistanceX", -1, 1, 16, 3, Q("85 mm")),
    Sketcher.Constraint("DistanceY", 16, 3, -1, 1, Q("8 mm")),
    Sketcher.Constraint("DistanceX", -1, 1, 17, 3, Q("61 mm")),
    Sketcher.Constraint("DistanceY", 18, 3, -1, 1, Q("64 mm")),
    Sketcher.Constraint("DistanceY", 35, 3, -1, 1, Q("103 mm")),
    Sketcher.Constraint("DistanceY", 45, 3, -1, 1, Q("186 mm")),
    Sketcher.Constraint("DistanceY", 52, 3, -1, 1, Q("204 mm")),
    Sketcher.Constraint("DistanceX", 54, 3, -1, 1, Q("14 mm")),
    Sketcher.Constraint("DistanceY", 54, 3, -1, 1, Q("170 mm")),
    Sketcher.Constraint("DistanceX", -1, 1, 20, 3, Q("11.75 mm")),
    Sketcher.Constraint("DistanceY", 20, 3, -1, 1, Q("79.25 mm")),
    Sketcher.Constraint("DistanceY", 21, 3, -1, 1, Q("96.75 mm")),
])
pad1 = body.newObject("PartDesign::Pad", "Pad")
pad1.Profile = sketch1
pad1.Length = 3
pad1.Reversed = True

sketch2 = body.newObject("Sketcher::SketchObject", "Sketch001")
sketch2.AttachmentSupport = (doc.getObject("XZ_Plane"), [""])
sketch2.MapMode = "FlatFace"
sketch2.addGeometry([
    Part.Circle(App.Vector(-90, -129.5, 0), App.Vector(0, 0, 1), 1.75),
    Part.Circle(App.Vector(-57.5, -129.5, 0), App.Vector(0, 0, 1), 1.75),
    Part.Circle(App.Vector(-25, -129.5, 0), App.Vector(0, 0, 1), 1.75),
], False)
sketch2.addConstraint([
    Sketcher.Constraint("Equal", 0, 1),
    Sketcher.Constraint("Equal", 1, 2),
    Sketcher.Constraint("Horizontal", 0, 3, 1, 3),
    Sketcher.Constraint("Horizontal", 1, 3, 2, 3),
    Sketcher.Constraint("Diameter", 0, Q("3.5 mm")),
    Sketcher.Constraint("DistanceX", 0, 3, -1, 1, Q("90 mm")),
    Sketcher.Constraint("DistanceX", 2, 3, -1, 1, Q("25 mm")),
    Sketcher.Constraint("DistanceY", 0, 3, -1, 1, Q("129.5 mm")),
    Sketcher.Constraint("DistanceX", 1, 3, -1, 1, Q("57.5 mm")),
])
doc.recompute()
hole = body.newObject("PartDesign::Hole", "Hole")
hole.Profile = sketch2
hole.ThreadType = "None"
hole.Diameter = 3.5
hole.DepthType = "ThroughAll"

sketch3 = body.newObject("Sketcher::SketchObject", "Sketch002")
sketch3.AttachmentSupport = (doc.getObject("XZ_Plane"), [""])
sketch3.MapMode = "FlatFace"
sketch3.AttachmentOffset = App.Placement(App.Vector(0, 0, -3), App.Rotation())
sketch3.addGeometry(Part.Circle(App.Vector(13, -142, 0), App.Vector(0, 0, 1), 1.65), False)
sketch3.addConstraint([
    Sketcher.Constraint("Diameter", 0, Q("3.3 mm")),
    Sketcher.Constraint("DistanceX", -1, 1, 0, 3, Q("13 mm")),
    Sketcher.Constraint("DistanceY", 0, 3, -1, 1, Q("142 mm")),
])
doc.recompute()
hole2 = body.newObject("PartDesign::Hole", "Hole001")
hole2.Profile = sketch3
hole2.ThreadType = "None"
hole2.Diameter = 3.3
hole2.DepthType = "ThroughAll"
hole2.Reversed = True
doc.recompute()

linearpattern = body.newObject("PartDesign::LinearPattern", "LinearPattern")
linearpattern.Originals = [hole2]
linearpattern.Direction = (doc.getObject("X_Axis"), [""])
linearpattern.Mode = "offset"
linearpattern.Offset = 15
linearpattern.Occurrences = 7
linearpattern.Reversed = True
body.Tip = linearpattern
doc.recompute()

linearpattern2 = body.newObject("PartDesign::LinearPattern", "LinearPattern001")
linearpattern2.Originals = [hole2]
linearpattern2.Direction = (doc.getObject("Z_Axis"), [""])
linearpattern2.Mode = "offset"
linearpattern2.Offset = 10
linearpattern2.Occurrences = 4
body.Tip = linearpattern2

sketch4 = body.newObject("Sketcher::SketchObject", "Sketch003")
sketch4.AttachmentSupport = (doc.getObject("XZ_Plane"), [""])
sketch4.MapMode = "FlatFace"
sketch4.AttachmentOffset = App.Placement(App.Vector(0, 0, -3), App.Rotation())
sketch4.addGeometry(Part.Circle(App.Vector(25, -90, 0), App.Vector(0, 0, 1), 1.65), False)
sketch4.addConstraint([
    Sketcher.Constraint("Diameter", 0, Q("3.3 mm")),
    Sketcher.Constraint("DistanceX", -1, 1, 0, 3, Q("25 mm")),
    Sketcher.Constraint("DistanceY", 0, 3, -1, 1, Q("90 mm")),
])
doc.recompute()
hole3 = body.newObject("PartDesign::Hole", "Hole002")
hole3.Profile = sketch4
hole3.ThreadType = "None"
hole3.Diameter = 3.3
hole3.DepthType = "ThroughAll"
hole3.Reversed = True
doc.recompute()

linearpattern3 = body.newObject("PartDesign::LinearPattern", "LinearPattern002")
linearpattern3.Originals = [hole3]
linearpattern3.Direction = (doc.getObject("X_Axis"), [""])
linearpattern3.Mode = "offset"
linearpattern3.Offset = 10
linearpattern3.Occurrences = 7
body.Tip = linearpattern3

sketch5 = body.newObject("Sketcher::SketchObject", "Sketch004")
sketch5.AttachmentSupport = (doc.getObject("XZ_Plane"), [""])
sketch5.MapMode = "FlatFace"
sketch5.AttachmentOffset = App.Placement(App.Vector(0, 0, -3), App.Rotation())
sketch5.addGeometry(Part.Circle(App.Vector(85, -105, 0), App.Vector(0, 0, 1), 1.65), False)
sketch5.addConstraint([
    Sketcher.Constraint("Diameter", 0, Q("3.3 mm")),
    Sketcher.Constraint("DistanceX", -1, 1, 0, 3, Q("85 mm")),
    Sketcher.Constraint("DistanceY", 0, 3, -1, 1, Q("105 mm")),
])
doc.recompute()
hole4 = body.newObject("PartDesign::Hole", "Hole003")
hole4.Profile = sketch5
hole4.ThreadType = "None"
hole4.Diameter = 3.3
hole4.DepthType = "ThroughAll"
hole4.Reversed = True

sketch6 = body.newObject("Sketcher::SketchObject", "Sketch005")
sketch6.AttachmentSupport = (doc.getObject("XZ_Plane"), [""])
sketch6.MapMode = "FlatFace"
sketch6.AttachmentOffset = App.Placement(App.Vector(0, 0, -3), App.Rotation())
sketch6.addGeometry([
    Part.LineSegment(App.Vector(-15, -132, 0), App.Vector(-15, -112, 0)),
    Part.LineSegment(App.Vector(-15, -112, 0), App.Vector(5, -112, 0)),
    Part.LineSegment(App.Vector(5, -112, 0), App.Vector(5, -132, 0)),
    Part.LineSegment(App.Vector(5, -132, 0), App.Vector(-15, -132, 0)),
], False)
sketch6.addConstraint([
    Sketcher.Constraint("Coincident", 0, 2, 1, 1),
    Sketcher.Constraint("Coincident", 1, 2, 2, 1),
    Sketcher.Constraint("Coincident", 2, 2, 3, 1),
    Sketcher.Constraint("Coincident", 3, 2, 0, 1),
    Sketcher.Constraint("Vertical", 0),
    Sketcher.Constraint("Horizontal", 1),
    Sketcher.Constraint("Vertical", 2),
    Sketcher.Constraint("Horizontal", 3),
    Sketcher.Constraint("Equal", 3, 0),
    Sketcher.Constraint("DistanceX", 1, 1, 1, 2, Q("20 mm")),
    Sketcher.Constraint("DistanceX", 0, 2, -1, 1, Q("15 mm")),
    Sketcher.Constraint("DistanceY", 0, 2, -1, 1, Q("112 mm")),
])
pocket1 = body.newObject("PartDesign::Pocket", "Pocket")
pocket1.Profile = sketch6
pocket1.Length = 10
pocket1.Reversed = True
doc.recompute()

fillet = body.newObject("PartDesign::Fillet", "Fillet")
fillet.Base = (pocket1, edges_at(pocket1, [
    (-15, 1.5, -112),
    (-15, 1.5, -132),
    (5, 1.5, -132),
    (5, 1.5, -112),
]))
fillet.Radius = 3

doc.recompute()
